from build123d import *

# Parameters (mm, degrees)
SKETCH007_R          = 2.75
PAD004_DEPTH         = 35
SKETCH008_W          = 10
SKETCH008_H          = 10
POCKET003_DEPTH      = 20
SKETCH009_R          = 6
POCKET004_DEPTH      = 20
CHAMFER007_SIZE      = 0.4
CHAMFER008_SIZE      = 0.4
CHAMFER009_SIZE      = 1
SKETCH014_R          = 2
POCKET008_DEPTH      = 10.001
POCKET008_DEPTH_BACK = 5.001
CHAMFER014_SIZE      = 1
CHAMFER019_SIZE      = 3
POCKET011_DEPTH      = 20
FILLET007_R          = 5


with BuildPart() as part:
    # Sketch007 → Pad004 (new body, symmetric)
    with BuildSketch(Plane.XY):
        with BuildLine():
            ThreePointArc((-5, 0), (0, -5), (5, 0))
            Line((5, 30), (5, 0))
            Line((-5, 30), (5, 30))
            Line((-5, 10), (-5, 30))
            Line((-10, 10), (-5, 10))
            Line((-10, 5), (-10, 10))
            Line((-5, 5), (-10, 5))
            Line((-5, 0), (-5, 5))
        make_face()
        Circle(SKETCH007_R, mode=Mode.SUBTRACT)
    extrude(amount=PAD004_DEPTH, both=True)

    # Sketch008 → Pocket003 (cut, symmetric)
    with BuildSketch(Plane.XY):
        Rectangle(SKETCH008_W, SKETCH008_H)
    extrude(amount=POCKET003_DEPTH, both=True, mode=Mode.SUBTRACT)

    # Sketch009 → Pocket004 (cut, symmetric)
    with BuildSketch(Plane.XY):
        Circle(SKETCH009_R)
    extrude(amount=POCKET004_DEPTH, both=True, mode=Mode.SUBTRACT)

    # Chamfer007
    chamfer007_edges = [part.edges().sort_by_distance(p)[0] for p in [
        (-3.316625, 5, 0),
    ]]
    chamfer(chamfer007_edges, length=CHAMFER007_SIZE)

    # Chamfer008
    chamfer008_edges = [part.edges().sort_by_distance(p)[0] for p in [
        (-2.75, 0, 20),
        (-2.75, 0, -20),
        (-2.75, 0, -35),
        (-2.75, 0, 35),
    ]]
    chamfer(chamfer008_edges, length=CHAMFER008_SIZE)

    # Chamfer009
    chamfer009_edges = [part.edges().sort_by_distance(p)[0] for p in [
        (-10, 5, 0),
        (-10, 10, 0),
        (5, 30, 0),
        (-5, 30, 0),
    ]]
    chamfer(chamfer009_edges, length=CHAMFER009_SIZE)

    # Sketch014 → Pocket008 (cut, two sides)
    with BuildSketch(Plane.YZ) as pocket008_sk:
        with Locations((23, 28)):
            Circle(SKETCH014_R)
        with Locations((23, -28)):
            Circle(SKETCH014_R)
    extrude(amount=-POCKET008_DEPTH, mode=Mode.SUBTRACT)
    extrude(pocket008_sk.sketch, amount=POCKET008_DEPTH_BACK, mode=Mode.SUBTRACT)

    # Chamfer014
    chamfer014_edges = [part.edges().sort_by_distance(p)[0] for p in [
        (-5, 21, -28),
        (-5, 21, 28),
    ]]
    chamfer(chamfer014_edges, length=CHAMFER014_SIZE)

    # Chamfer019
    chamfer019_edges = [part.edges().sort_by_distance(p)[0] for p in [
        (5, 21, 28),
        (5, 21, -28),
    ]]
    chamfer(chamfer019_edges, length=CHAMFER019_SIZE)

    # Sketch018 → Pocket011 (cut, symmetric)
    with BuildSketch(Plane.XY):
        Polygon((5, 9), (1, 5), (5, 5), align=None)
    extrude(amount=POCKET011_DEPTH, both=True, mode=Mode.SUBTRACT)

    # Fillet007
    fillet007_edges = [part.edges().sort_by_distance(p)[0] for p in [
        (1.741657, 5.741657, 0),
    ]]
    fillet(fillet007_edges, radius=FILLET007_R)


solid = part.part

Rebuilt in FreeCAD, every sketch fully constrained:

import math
import FreeCAD as App
import Part
import Sketcher
from FreeCAD import Vector
Q = App.Units.Quantity


def edges_at(feature, points):
    """Names of the edges that pass closest to the given points."""
    edges = feature.Shape.Edges
    near = lambda p: min(range(len(edges)), key=lambda i: edges[i].distToShape(Part.Vertex(*p))[0])
    return sorted({f"Edge{near(p) + 1}" for p in points})


def add_polygon(sketch, points):
    """Adds a closed chain of lines whose ends are joined by coincident constraints."""
    first, n = sketch.GeometryCount, len(points)
    for a, b in zip(points, points[1:] + points[:1]):
        sketch.addGeometry(Part.LineSegment(App.Vector(*a, 0), App.Vector(*b, 0)), False)
    for i in range(n):
        sketch.addConstraint(Sketcher.Constraint("Coincident", first + i, 2, first + (i + 1) % n, 1))

doc = App.newDocument("Part")
body = doc.addObject("PartDesign::Body", "Body")

sketch1 = body.newObject("Sketcher::SketchObject", "Sketch")
sketch1.AttachmentSupport = (doc.getObject("XY_Plane"), [""])
sketch1.MapMode = "FlatFace"
sketch1.addGeometry([
    Part.ArcOfCircle(Part.Circle(Vector(0, 0, 0), Vector(0, 0, 1), 5), math.radians(180), math.radians(360)),
    Part.LineSegment(Vector(5, 0, 0), Vector(5, 30, 0)),
    Part.LineSegment(Vector(5, 30, 0), Vector(-5, 30, 0)),
    Part.LineSegment(Vector(-5, 30, 0), Vector(-5, 10, 0)),
    Part.LineSegment(Vector(-5, 10, 0), Vector(-10, 10, 0)),
    Part.LineSegment(Vector(-10, 10, 0), Vector(-10, 5, 0)),
    Part.LineSegment(Vector(-10, 5, 0), Vector(-5, 5, 0)),
    Part.LineSegment(Vector(-5, 5, 0), Vector(-5, 0, 0)),
    Part.Circle(Vector(0, 0, 0), Vector(0, 0, 1), 2.75),
], False)
sketch1.addConstraint([
    Sketcher.Constraint("Tangent", 0, 2, 1, 1),
    Sketcher.Constraint("Coincident", 1, 2, 2, 1),
    Sketcher.Constraint("Coincident", 2, 2, 3, 1),
    Sketcher.Constraint("Coincident", 3, 2, 4, 1),
    Sketcher.Constraint("Coincident", 4, 2, 5, 1),
    Sketcher.Constraint("Coincident", 5, 2, 6, 1),
    Sketcher.Constraint("Coincident", 6, 2, 7, 1),
    Sketcher.Constraint("Tangent", 7, 2, 0, 1),
    Sketcher.Constraint("Vertical", 1),
    Sketcher.Constraint("Horizontal", 2),
    Sketcher.Constraint("Vertical", 3),
    Sketcher.Constraint("Horizontal", 4),
    Sketcher.Constraint("Vertical", 5),
    Sketcher.Constraint("Horizontal", 6),
    Sketcher.Constraint("Vertical", 7),
    Sketcher.Constraint("Coincident", 0, 3, -1, 1),
    Sketcher.Constraint("Coincident", 8, 3, -1, 1),
    Sketcher.Constraint("Vertical", 3, 2, 6, 2),
    Sketcher.Constraint("Equal", 6, 5),
    Sketcher.Constraint("Equal", 5, 7),
    Sketcher.Constraint("Radius", 0, Q("5 mm")),
    Sketcher.Constraint("Diameter", 8, Q("5.5 mm")),
    Sketcher.Constraint("DistanceX", 4, 2, 4, 1, Q("5 mm")),
    Sketcher.Constraint("DistanceY", 1, 1, 1, 2, Q("30 mm")),
])
pad1 = body.newObject("PartDesign::Pad", "Pad")
pad1.Profile = sketch1
pad1.Length = 70
pad1.Midplane = True

sketch2 = body.newObject("Sketcher::SketchObject", "Sketch001")
sketch2.AttachmentSupport = (doc.getObject("XY_Plane"), [""])
sketch2.MapMode = "FlatFace"
add_polygon(sketch2, [(-5, 5), (-5, -5), (5, -5), (5, 5)])
sketch2.addConstraint([
    Sketcher.Constraint("Vertical", 0),
    Sketcher.Constraint("Horizontal", 1),
    Sketcher.Constraint("Vertical", 2),
    Sketcher.Constraint("Horizontal", 3),
    Sketcher.Constraint("Symmetric", 0, 2, 2, 2, -1, 1),
    Sketcher.Constraint("Equal", 3, 0),
    Sketcher.Constraint("DistanceX", 1, 1, 1, 2, Q("10 mm")),
])
pocket1 = body.newObject("PartDesign::Pocket", "Pocket")
pocket1.Profile = sketch2
pocket1.Length = 40
pocket1.Midplane = True

sketch3 = body.newObject("Sketcher::SketchObject", "Sketch002")
sketch3.AttachmentSupport = (doc.getObject("XY_Plane"), [""])
sketch3.MapMode = "FlatFace"
sketch3.addGeometry(Part.Circle(Vector(0, 0, 0), Vector(0, 0, 1), 6), False)
sketch3.addConstraint([
    Sketcher.Constraint("Coincident", 0, 3, -1, 1),
    Sketcher.Constraint("Diameter", 0, Q("12 mm")),
])
pocket2 = body.newObject("PartDesign::Pocket", "Pocket001")
pocket2.Profile = sketch3
pocket2.Length = 40
pocket2.Midplane = True
doc.recompute()

chamfer = body.newObject("PartDesign::Chamfer", "Chamfer")
chamfer.Base = (pocket2, edges_at(pocket2, [(-3.317, 5, 0)]))
chamfer.Size = 0.4
doc.recompute()

chamfer2 = body.newObject("PartDesign::Chamfer", "Chamfer001")
chamfer2.Base = (chamfer, edges_at(chamfer, [
    (-2.75, 0, 20),
    (-2.75, 0, -20),
    (-2.75, 0, -35),
    (-2.75, 0, 35),
]))
chamfer2.Size = 0.4
doc.recompute()

chamfer3 = body.newObject("PartDesign::Chamfer", "Chamfer002")
chamfer3.Base = (chamfer2, edges_at(chamfer2, [
    (-10, 5, 0),
    (-10, 10, 0),
    (5, 30, 0),
    (-5, 30, 0),
]))
chamfer3.Size = 1

sketch4 = body.newObject("Sketcher::SketchObject", "Sketch003")
sketch4.AttachmentSupport = (doc.getObject("YZ_Plane"), [""])
sketch4.MapMode = "FlatFace"
sketch4.addGeometry([
    Part.Circle(Vector(23, 28, 0), Vector(0, 0, 1), 2),
    Part.Circle(Vector(23, -28, 0), Vector(0, 0, 1), 2),
], False)
sketch4.addConstraint([
    Sketcher.Constraint("Equal", 0, 1),
    Sketcher.Constraint("Symmetric", 0, 3, 1, 3, -1),
    Sketcher.Constraint("Diameter", 0, Q("4 mm")),
    Sketcher.Constraint("DistanceX", -1, 1, 0, 3, Q("23 mm")),
    Sketcher.Constraint("DistanceY", -1, 1, 0, 3, Q("28 mm")),
])
pocket3 = body.newObject("PartDesign::Pocket", "Pocket002")
pocket3.Profile = sketch4
pocket3.Type = "ThroughAll"
pocket3.Midplane = True
doc.recompute()

chamfer4 = body.newObject("PartDesign::Chamfer", "Chamfer003")
chamfer4.Base = (pocket3, edges_at(pocket3, [(-5, 21, -28), (-5, 21, 28)]))
chamfer4.Size = 1
doc.recompute()

chamfer5 = body.newObject("PartDesign::Chamfer", "Chamfer004")
chamfer5.Base = (chamfer4, edges_at(chamfer4, [(5, 21, 28), (5, 21, -28)]))
chamfer5.Size = 3

sketch5 = body.newObject("Sketcher::SketchObject", "Sketch004")
sketch5.AttachmentSupport = (doc.getObject("XY_Plane"), [""])
sketch5.MapMode = "FlatFace"
add_polygon(sketch5, [(5, 9), (1, 5), (5, 5)])
sketch5.addConstraint([
    Sketcher.Constraint("Horizontal", 1),
    Sketcher.Constraint("Vertical", 2),
    Sketcher.Constraint("Equal", 1, 2),
    Sketcher.Constraint("DistanceX", 1, 1, 1, 2, Q("4 mm")),
    Sketcher.Constraint("DistanceX", -1, 1, 0, 2, Q("1 mm")),
    Sketcher.Constraint("DistanceY", -1, 1, 0, 2, Q("5 mm")),
])
pocket4 = body.newObject("PartDesign::Pocket", "Pocket003")
pocket4.Profile = sketch5
pocket4.Length = 40
pocket4.Midplane = True
doc.recompute()

fillet = body.newObject("PartDesign::Fillet", "Fillet")
fillet.Base = (pocket4, edges_at(pocket4, [(1.742, 5.742, 0)]))
fillet.Radius = 5

doc.recompute()
